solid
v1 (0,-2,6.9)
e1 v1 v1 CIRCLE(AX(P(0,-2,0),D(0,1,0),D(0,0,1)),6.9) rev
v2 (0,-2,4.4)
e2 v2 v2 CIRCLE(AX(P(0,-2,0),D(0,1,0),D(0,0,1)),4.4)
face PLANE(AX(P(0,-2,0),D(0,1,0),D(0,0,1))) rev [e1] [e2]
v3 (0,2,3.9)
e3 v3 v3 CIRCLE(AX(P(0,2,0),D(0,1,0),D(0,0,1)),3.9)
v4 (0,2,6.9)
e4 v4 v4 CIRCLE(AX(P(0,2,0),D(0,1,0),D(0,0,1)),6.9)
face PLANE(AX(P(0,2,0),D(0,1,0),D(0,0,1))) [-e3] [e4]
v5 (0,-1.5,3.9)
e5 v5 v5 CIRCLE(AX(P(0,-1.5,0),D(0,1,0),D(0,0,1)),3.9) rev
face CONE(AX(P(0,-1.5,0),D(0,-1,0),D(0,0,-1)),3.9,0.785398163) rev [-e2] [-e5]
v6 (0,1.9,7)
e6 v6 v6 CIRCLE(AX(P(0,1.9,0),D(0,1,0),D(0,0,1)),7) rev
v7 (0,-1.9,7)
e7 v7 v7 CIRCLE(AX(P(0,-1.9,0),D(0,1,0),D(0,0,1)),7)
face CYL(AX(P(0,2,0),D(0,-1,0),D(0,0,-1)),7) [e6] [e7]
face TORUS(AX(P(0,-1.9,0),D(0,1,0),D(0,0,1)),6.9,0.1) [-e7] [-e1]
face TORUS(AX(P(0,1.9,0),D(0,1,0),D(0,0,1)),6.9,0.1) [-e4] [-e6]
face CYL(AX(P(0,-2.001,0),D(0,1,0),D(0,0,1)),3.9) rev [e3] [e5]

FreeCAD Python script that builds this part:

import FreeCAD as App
import Part
import Sketcher

V = App.Vector
Q = App.Units.Quantity


def edges_at(feature, points):
    """Names of the edges that pass closest to the given points."""
    edges = feature.Shape.Edges
    near = lambda p: min(range(len(edges)), key=lambda i: edges[i].distToShape(Part.Vertex(*p))[0])
    return sorted({f"Edge{near(p) + 1}" for p in points})

doc = App.newDocument("Part")
body = doc.addObject("PartDesign::Body", "Body")

# Sketch on XZ plane
sketch1 = body.newObject("Sketcher::SketchObject", "Sketch")
sketch1.AttachmentSupport = (doc.getObject("XZ_Plane"), [""])
sketch1.MapMode = "FlatFace"
sketch1.addGeometry(Part.Circle(V(0, 0, 0), V(0, 0, 1), 7), False)
sketch1.addConstraint([
    Sketcher.Constraint("Coincident", 0, 3, -1, 1),
    Sketcher.Constraint("Diameter", 0, Q("14 mm")),
])
pad1 = body.newObject("PartDesign::Pad", "Pad")
pad1.Profile = sketch1
pad1.Length = 4
pad1.Midplane = True

# Sketch on XZ plane
sketch2 = body.newObject("Sketcher::SketchObject", "Sketch001")
sketch2.AttachmentSupport = (doc.getObject("XZ_Plane"), [""])
sketch2.MapMode = "FlatFace"
sketch2.AttachmentOffset = App.Placement(V(0, 0, -2), App.Rotation())
sketch2.addGeometry(Part.Circle(V(0, 0, 0), V(0, 0, 1), 3.9), False)
sketch2.addConstraint([
    Sketcher.Constraint("Coincident", 0, 3, -1, 1),
    Sketcher.Constraint("Diameter", 0, Q("7.8 mm")),
])
pocket1 = body.newObject("PartDesign::Pocket", "Pocket")
pocket1.Profile = sketch2
pocket1.Type = "UpToFirst"
pocket1.Reversed = True
doc.recompute()

chamfer = body.newObject("PartDesign::Chamfer", "Chamfer")
chamfer.Base = (pocket1, edges_at(pocket1, [(0, -2, -3.9)]))
chamfer.Size = 0.5
doc.recompute()

fillet = body.newObject("PartDesign::Fillet", "Fillet")
fillet.Base = (chamfer, edges_at(chamfer, [(0, -2, -7), (0, 2, -7)]))
fillet.Radius = 0.1

doc.recompute()
